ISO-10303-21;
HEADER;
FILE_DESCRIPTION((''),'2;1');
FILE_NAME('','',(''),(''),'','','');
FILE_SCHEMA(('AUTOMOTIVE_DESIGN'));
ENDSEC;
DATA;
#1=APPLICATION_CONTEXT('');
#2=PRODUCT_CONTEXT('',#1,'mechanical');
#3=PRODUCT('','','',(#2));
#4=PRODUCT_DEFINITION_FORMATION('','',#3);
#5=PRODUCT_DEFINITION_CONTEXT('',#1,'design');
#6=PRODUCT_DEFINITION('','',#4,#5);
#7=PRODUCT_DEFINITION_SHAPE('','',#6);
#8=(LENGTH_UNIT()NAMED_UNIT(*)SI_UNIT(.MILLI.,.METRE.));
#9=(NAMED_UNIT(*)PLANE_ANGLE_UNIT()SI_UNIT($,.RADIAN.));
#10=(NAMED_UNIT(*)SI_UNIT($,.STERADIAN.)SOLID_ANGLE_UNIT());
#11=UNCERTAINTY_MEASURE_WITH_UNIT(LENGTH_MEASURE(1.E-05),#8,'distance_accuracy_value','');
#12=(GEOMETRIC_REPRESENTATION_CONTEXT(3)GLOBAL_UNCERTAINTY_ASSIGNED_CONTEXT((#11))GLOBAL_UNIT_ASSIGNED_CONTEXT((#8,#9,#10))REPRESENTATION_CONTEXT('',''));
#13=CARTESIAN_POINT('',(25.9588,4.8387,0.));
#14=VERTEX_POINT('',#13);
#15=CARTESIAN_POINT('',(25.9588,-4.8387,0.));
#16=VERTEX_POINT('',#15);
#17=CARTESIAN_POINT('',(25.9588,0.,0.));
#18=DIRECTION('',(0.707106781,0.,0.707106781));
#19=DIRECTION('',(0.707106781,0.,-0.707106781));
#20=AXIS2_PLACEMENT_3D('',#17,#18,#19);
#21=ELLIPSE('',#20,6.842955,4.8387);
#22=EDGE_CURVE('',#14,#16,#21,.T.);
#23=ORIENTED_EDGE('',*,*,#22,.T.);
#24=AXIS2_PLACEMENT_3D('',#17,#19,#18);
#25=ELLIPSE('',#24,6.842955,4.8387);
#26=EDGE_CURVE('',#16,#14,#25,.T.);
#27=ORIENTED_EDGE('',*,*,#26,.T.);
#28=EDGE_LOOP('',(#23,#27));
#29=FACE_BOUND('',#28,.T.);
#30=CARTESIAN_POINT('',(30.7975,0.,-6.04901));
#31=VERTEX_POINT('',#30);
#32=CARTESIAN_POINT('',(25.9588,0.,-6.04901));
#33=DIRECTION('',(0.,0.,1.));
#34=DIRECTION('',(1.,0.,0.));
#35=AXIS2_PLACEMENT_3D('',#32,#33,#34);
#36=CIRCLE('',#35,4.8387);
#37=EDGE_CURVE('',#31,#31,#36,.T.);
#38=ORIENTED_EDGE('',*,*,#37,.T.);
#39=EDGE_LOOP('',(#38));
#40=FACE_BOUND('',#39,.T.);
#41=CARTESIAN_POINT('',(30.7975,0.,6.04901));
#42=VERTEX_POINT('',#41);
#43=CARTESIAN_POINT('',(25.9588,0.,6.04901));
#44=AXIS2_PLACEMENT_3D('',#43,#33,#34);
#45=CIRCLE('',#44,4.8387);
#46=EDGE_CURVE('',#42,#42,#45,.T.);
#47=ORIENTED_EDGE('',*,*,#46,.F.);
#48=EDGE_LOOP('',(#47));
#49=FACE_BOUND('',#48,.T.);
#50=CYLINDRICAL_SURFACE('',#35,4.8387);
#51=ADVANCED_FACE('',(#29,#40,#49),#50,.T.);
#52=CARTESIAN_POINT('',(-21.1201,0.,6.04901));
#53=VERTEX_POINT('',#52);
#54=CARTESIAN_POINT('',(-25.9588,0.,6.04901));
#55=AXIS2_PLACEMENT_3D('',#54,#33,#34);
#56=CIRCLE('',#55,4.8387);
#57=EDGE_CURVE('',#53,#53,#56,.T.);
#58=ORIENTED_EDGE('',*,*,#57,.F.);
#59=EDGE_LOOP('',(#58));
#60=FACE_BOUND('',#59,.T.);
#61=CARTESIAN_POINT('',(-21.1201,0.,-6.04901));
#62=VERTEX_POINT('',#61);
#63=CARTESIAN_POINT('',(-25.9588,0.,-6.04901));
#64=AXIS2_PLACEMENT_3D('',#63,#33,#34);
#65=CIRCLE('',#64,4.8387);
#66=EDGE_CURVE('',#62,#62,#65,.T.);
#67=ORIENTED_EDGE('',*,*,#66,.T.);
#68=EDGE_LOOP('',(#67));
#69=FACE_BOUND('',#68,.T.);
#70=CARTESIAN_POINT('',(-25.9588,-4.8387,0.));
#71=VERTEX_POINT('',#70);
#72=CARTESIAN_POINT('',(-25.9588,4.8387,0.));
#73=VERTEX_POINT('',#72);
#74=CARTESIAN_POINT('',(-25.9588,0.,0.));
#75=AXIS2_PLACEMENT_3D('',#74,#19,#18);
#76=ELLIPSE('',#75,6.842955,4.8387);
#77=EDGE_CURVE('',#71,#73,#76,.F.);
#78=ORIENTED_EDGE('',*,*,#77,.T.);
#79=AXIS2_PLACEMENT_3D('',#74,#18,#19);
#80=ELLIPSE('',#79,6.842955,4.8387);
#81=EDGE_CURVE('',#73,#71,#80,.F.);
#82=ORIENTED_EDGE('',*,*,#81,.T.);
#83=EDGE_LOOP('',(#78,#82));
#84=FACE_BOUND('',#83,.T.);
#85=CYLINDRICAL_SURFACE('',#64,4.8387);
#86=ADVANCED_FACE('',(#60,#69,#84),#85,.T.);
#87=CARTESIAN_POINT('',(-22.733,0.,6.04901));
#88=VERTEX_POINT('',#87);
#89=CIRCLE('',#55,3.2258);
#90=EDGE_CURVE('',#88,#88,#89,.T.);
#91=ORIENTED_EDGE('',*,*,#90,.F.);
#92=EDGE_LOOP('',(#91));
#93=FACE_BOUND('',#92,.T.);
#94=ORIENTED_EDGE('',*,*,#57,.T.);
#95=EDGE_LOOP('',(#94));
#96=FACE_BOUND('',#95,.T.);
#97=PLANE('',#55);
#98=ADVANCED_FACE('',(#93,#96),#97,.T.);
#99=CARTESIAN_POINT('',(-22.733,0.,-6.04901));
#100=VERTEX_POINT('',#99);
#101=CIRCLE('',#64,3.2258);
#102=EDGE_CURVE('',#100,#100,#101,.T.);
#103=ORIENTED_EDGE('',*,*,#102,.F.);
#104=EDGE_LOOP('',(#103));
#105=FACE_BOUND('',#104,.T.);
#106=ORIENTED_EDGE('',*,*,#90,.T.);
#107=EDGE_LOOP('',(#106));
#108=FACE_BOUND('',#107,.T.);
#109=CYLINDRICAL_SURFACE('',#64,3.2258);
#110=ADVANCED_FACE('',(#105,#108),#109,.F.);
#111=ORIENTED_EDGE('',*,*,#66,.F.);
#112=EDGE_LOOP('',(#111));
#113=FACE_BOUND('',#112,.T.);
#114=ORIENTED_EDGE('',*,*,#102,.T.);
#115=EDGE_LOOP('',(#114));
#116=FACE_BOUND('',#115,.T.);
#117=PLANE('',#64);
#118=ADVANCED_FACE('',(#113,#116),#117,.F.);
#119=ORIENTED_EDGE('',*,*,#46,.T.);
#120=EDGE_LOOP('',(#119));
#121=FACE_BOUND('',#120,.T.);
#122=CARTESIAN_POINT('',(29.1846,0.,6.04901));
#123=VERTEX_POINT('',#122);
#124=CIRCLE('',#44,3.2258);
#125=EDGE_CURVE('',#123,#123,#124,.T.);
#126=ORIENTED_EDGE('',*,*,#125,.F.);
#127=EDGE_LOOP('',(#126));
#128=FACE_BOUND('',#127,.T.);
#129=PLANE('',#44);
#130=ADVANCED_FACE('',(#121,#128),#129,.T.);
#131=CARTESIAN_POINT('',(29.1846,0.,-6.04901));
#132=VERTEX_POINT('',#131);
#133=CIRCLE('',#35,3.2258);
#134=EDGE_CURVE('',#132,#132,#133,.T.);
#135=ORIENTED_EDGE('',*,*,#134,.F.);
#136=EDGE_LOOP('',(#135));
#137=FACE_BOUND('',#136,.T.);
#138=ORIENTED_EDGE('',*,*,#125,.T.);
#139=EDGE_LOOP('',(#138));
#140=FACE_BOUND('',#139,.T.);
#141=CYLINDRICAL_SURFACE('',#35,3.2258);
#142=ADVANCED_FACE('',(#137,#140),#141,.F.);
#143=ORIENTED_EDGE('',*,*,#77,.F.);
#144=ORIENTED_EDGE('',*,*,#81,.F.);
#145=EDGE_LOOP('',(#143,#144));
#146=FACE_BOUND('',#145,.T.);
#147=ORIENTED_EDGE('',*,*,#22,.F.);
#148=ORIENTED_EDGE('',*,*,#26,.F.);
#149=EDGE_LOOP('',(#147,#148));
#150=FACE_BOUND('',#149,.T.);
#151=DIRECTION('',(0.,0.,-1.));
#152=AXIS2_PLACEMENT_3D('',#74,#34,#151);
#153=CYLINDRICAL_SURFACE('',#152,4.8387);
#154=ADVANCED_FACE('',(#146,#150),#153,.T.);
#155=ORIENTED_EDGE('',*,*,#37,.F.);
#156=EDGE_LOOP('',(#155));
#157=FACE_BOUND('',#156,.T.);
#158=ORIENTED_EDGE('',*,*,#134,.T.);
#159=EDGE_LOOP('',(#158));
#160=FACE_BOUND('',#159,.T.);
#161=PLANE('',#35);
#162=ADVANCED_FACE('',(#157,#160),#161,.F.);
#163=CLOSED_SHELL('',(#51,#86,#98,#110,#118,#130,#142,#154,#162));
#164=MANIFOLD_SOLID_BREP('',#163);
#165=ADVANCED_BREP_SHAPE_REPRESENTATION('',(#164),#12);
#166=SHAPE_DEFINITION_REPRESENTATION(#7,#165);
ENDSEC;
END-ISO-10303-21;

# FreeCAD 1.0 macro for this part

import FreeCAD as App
import Part
import Sketcher

V = App.Vector
Q = App.Units.Quantity

doc = App.newDocument("Part")
body = doc.addObject("PartDesign::Body", "Body")

# Sketch on YZ plane
sketch1 = body.newObject("Sketcher::SketchObject", "Sketch")
sketch1.AttachmentSupport = (doc.getObject("YZ_Plane"), [""])
sketch1.MapMode = "FlatFace"
sketch1.addGeometry(Part.Circle(V(0, 0, 0), V(0, 0, 1), 4.8), False)
sketch1.addConstraint(Sketcher.Constraint("Coincident", 0, 3, -1, 1))
sketch1.addConstraint(Sketcher.Constraint("Diameter", 0, Q("0.381 in")))
pad1 = body.newObject("PartDesign::Pad", "Pad")
pad1.Profile = sketch1
pad1.Type = "TwoLengths"
pad1.Length = Q("1.022 in")
pad1.Length2 = Q("1.022 in")

# Sketch on XY plane
sketch2 = body.newObject("Sketcher::SketchObject", "Sketch001")
sketch2.AttachmentSupport = (doc.getObject("XY_Plane"), [""])
sketch2.MapMode = "FlatFace"
sketch2.addGeometry(Part.Circle(V(26, 0, 0), V(0, 0, 1), 4.8), False)
sketch2.addGeometry(Part.Circle(V(-26, 0, 0), V(0, 0, 1), 4.8), False)
sketch2.addConstraint(Sketcher.Constraint("Equal", 0, 1))
sketch2.addConstraint(Sketcher.Constraint("Symmetric", 0, 3, 1, 3, -1, 1))
sketch2.addConstraint(Sketcher.Constraint("PointOnObject", 0, 3, -1))
sketch2.addConstraint(Sketcher.Constraint("Diameter", 0, Q("0.381 in")))
sketch2.addConstraint(Sketcher.Constraint("DistanceX", -1, 1, 0, 3, Q("1.022 in")))
pad2 = body.newObject("PartDesign::Pad", "Pad001")
pad2.Profile = sketch2
pad2.Type = "TwoLengths"
pad2.Length = 6.04901
pad2.Length2 = 6.04901

# Sketch on XY plane
sketch3 = body.newObject("Sketcher::SketchObject", "Sketch002")
sketch3.AttachmentSupport = (doc.getObject("XY_Plane"), [""])
sketch3.MapMode = "FlatFace"
sketch3.AttachmentOffset = App.Placement(V(0, 0, 6.04901), App.Rotation())
sketch3.addGeometry(Part.Circle(V(-26, 0, 0), V(0, 0, 1), 3.2), False)
sketch3.addGeometry(Part.Circle(V(26, 0, 0), V(0, 0, 1), 3.2), False)
sketch3.addConstraint(Sketcher.Constraint("Equal", 0, 1))
sketch3.addConstraint(Sketcher.Constraint("Symmetric", 0, 3, 1, 3, -1, 1))
sketch3.addConstraint(Sketcher.Constraint("PointOnObject", 0, 3, -1))
sketch3.addConstraint(Sketcher.Constraint("Diameter", 0, Q("0.254 in")))
sketch3.addConstraint(Sketcher.Constraint("DistanceX", 0, 3, -1, 1, Q("1.022 in")))
pocket1 = body.newObject("PartDesign::Pocket", "Pocket")
pocket1.Profile = sketch3
pocket1.Type = "ThroughAll"

doc.recompute()
